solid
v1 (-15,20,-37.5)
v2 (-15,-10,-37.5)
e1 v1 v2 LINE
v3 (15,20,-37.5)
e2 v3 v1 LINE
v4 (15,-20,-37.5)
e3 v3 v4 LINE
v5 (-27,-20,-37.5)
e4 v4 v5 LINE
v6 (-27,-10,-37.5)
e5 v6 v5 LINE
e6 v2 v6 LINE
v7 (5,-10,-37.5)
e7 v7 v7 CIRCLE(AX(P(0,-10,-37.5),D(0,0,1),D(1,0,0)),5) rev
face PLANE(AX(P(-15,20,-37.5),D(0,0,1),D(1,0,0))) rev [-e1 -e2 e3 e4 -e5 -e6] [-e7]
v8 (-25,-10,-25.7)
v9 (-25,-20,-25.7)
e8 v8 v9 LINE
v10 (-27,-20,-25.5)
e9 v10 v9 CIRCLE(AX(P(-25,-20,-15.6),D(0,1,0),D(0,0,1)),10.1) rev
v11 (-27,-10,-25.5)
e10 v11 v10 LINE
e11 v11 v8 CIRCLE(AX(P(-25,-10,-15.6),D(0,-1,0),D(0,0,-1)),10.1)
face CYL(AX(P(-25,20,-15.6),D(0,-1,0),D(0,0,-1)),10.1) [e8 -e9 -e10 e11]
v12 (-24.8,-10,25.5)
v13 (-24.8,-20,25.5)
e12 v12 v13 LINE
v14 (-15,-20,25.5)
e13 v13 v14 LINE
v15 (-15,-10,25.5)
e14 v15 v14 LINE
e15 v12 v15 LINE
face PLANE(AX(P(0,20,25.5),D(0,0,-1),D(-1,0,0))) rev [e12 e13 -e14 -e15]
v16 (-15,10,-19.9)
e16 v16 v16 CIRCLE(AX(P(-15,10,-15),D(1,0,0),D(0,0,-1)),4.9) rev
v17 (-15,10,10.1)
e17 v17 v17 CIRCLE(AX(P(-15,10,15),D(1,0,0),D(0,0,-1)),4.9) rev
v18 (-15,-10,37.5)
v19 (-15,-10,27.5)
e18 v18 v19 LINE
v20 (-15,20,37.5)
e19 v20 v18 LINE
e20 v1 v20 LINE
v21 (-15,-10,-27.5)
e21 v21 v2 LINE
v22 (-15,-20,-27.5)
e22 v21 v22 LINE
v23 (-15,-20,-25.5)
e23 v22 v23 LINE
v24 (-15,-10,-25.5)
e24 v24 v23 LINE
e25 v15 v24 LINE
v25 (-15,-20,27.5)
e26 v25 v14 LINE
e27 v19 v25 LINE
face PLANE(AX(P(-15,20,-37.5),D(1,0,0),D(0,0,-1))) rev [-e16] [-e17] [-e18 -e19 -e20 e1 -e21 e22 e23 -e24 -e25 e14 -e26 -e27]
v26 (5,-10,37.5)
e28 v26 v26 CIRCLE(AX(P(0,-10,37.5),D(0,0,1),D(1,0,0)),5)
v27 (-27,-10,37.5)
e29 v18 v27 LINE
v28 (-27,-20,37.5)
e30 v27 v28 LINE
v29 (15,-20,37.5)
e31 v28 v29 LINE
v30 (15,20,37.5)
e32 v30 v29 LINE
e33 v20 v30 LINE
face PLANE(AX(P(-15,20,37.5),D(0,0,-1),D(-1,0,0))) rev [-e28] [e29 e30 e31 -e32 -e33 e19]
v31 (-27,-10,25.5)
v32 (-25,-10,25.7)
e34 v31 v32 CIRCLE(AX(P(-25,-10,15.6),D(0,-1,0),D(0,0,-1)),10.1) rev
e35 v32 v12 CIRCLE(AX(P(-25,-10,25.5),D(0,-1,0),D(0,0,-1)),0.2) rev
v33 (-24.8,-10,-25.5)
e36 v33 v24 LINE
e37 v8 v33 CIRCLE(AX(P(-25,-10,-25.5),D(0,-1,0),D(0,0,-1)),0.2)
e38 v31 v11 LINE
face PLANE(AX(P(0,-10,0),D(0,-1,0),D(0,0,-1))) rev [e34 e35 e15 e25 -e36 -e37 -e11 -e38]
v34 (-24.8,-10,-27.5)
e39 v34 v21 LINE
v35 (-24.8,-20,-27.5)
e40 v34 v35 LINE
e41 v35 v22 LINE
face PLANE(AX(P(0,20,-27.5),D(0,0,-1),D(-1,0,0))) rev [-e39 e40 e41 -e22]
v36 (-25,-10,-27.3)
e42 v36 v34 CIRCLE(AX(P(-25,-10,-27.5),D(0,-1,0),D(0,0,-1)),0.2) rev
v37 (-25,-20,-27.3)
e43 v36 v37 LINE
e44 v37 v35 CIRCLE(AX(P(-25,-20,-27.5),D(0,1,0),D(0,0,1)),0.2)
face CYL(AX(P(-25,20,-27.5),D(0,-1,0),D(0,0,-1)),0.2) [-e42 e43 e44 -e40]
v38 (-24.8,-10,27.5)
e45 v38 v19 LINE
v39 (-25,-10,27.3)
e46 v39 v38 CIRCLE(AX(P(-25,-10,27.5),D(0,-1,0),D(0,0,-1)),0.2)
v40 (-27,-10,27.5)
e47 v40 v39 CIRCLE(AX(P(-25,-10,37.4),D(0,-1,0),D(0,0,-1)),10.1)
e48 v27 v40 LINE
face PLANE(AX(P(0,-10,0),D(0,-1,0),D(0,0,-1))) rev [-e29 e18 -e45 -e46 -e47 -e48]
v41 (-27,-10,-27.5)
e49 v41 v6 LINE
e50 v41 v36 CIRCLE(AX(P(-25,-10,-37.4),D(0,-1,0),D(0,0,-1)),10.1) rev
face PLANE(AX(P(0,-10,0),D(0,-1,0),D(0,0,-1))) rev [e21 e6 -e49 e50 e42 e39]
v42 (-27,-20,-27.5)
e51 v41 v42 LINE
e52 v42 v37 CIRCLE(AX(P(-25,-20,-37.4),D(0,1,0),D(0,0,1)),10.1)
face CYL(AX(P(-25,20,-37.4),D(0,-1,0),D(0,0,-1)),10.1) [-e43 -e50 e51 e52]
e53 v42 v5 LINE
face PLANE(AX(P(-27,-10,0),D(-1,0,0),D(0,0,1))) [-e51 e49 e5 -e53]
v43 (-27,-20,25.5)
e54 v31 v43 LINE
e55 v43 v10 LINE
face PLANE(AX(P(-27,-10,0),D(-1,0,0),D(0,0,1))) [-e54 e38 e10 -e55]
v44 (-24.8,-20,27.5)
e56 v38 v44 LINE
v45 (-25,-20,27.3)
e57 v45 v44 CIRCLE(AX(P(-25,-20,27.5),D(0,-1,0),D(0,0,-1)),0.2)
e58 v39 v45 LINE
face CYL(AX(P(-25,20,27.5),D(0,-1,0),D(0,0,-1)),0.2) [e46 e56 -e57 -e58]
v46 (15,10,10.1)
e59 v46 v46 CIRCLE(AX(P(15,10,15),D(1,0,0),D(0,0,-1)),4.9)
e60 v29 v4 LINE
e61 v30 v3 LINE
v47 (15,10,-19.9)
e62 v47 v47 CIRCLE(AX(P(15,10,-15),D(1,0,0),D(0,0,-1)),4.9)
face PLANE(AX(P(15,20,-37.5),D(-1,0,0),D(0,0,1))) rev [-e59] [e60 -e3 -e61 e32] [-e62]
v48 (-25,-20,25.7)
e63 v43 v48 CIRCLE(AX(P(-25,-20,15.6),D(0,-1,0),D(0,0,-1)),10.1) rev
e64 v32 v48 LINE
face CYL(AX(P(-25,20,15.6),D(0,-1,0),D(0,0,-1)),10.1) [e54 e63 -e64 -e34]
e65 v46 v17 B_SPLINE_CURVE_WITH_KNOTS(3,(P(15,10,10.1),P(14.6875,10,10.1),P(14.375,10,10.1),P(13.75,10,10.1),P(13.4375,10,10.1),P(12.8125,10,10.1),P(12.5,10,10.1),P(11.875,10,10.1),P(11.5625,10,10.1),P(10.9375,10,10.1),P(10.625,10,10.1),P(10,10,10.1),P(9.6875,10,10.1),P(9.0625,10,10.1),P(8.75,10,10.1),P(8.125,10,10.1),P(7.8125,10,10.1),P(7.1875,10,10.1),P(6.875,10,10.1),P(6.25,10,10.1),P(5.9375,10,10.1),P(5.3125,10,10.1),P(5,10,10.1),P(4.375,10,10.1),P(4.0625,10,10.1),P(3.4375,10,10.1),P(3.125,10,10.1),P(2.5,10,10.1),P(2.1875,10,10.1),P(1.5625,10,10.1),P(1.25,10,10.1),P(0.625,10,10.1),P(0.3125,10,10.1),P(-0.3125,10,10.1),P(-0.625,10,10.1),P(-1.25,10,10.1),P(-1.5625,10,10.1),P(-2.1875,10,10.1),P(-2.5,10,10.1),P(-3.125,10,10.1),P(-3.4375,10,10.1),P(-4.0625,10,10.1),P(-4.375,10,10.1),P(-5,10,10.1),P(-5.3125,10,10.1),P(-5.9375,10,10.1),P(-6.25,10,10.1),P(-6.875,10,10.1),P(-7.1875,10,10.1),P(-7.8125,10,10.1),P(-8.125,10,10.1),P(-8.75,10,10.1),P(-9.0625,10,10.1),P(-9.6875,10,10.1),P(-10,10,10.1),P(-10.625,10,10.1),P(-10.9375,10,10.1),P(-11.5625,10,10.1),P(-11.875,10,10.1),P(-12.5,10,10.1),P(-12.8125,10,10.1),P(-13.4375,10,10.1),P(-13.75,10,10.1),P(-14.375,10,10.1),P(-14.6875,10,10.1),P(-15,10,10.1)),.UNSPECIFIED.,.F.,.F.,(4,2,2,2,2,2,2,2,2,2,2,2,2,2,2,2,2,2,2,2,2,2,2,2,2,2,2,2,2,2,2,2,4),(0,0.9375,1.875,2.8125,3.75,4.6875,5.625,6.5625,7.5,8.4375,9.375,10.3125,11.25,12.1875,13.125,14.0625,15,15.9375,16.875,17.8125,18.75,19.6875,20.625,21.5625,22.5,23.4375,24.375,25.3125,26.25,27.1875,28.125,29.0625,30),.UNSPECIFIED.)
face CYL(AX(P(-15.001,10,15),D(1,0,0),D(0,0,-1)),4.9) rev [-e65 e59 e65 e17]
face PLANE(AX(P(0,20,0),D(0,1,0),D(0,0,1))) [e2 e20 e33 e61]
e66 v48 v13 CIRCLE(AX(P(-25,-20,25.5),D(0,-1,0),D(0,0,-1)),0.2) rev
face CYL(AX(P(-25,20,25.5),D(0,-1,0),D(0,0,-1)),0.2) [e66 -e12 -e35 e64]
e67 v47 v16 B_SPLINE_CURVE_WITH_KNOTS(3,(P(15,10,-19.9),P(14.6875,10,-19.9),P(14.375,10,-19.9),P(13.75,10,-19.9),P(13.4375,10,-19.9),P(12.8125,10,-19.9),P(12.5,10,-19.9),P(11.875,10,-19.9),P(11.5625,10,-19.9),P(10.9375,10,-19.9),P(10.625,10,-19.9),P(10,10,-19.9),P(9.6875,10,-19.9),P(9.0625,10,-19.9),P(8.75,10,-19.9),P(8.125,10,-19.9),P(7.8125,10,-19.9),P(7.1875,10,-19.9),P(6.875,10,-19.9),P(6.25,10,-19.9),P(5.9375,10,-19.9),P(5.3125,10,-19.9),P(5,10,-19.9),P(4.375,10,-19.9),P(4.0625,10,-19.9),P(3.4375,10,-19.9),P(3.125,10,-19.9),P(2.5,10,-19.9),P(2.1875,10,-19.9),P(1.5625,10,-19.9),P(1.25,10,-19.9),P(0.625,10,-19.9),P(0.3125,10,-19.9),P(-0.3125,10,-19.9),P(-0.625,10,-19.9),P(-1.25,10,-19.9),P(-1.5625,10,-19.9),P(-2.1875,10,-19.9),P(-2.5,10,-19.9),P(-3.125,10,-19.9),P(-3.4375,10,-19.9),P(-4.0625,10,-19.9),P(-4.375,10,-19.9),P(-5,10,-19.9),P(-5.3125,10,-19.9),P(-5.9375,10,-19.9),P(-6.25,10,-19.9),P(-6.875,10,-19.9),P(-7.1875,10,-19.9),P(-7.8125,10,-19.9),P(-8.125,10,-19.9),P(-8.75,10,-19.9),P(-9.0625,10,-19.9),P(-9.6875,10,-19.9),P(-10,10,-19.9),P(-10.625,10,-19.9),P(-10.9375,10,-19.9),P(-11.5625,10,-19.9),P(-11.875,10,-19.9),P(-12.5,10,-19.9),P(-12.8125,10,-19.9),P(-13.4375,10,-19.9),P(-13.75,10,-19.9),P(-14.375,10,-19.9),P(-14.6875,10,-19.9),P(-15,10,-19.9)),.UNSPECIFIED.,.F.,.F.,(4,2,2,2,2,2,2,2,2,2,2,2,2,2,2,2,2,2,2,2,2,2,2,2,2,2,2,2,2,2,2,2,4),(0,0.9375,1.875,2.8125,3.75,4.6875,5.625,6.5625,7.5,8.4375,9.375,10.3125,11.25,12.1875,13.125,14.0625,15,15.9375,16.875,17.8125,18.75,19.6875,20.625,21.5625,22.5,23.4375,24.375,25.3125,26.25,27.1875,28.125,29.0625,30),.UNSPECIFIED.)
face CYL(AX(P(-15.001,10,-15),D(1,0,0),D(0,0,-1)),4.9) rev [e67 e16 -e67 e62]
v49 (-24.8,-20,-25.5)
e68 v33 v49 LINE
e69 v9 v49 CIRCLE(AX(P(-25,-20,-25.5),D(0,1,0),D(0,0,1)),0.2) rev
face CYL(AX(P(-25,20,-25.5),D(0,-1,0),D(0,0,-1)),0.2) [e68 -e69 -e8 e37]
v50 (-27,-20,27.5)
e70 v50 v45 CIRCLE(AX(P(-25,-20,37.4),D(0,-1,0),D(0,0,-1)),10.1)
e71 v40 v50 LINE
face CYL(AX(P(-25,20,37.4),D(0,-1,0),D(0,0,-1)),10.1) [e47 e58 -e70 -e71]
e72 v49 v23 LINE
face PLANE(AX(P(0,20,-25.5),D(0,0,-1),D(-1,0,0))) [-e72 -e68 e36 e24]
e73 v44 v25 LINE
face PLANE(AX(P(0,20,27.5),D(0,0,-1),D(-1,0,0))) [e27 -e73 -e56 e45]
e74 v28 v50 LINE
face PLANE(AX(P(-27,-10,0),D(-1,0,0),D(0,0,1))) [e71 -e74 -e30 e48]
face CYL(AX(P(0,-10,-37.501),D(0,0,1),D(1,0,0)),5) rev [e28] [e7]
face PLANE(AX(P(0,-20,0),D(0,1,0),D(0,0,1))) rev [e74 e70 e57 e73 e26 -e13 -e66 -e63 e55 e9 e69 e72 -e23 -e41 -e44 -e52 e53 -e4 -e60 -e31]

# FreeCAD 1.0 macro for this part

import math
import FreeCAD as App
import Part
import Sketcher

V = App.Vector
Q = App.Units.Quantity

doc = App.newDocument("Part")
body = doc.addObject("PartDesign::Body", "Body")

sketch1 = body.newObject("Sketcher::SketchObject", "Sketch")
sketch1.AttachmentSupport = (doc.getObject("XZ_Plane"), [""])
sketch1.MapMode = "FlatFace"
sketch1.addGeometry([
    Part.LineSegment(V(-15, -38, 0), V(-15, 38, 0)),
    Part.LineSegment(V(-15, 38, 0), V(15, 38, 0)),
    Part.LineSegment(V(15, 38, 0), V(15, -38, 0)),
    Part.LineSegment(V(15, -38, 0), V(-15, -38, 0)),
], False)
sketch1.addConstraint([
    Sketcher.Constraint("Coincident", 0, 2, 1, 1),
    Sketcher.Constraint("Coincident", 1, 2, 2, 1),
    Sketcher.Constraint("Coincident", 2, 2, 3, 1),
    Sketcher.Constraint("Coincident", 3, 2, 0, 1),
    Sketcher.Constraint("Vertical", 0),
    Sketcher.Constraint("Horizontal", 1),
    Sketcher.Constraint("Vertical", 2),
    Sketcher.Constraint("Horizontal", 3),
    Sketcher.Constraint("Symmetric", 0, 2, 2, 2, -1, 1),
    Sketcher.Constraint("DistanceX", 1, 1, 1, 2, Q("30 mm")),
    Sketcher.Constraint("DistanceY", 0, 1, 0, 2, Q("75 mm")),
])
pad1 = body.newObject("PartDesign::Pad", "Pad")
pad1.Profile = sketch1
pad1.Length = 40
pad1.Midplane = True

sketch2 = body.newObject("Sketcher::SketchObject", "Sketch001")
sketch2.AttachmentSupport = (doc.getObject("XY_Plane"), [""])
sketch2.MapMode = "FlatFace"
sketch2.AttachmentOffset = App.Placement(V(0, 0, 37.5), App.Rotation())
sketch2.addGeometry(Part.Circle(V(0, -10, 0), V(0, 0, 1), 5), False)
sketch2.addConstraint([
    Sketcher.Constraint("PointOnObject", 0, 3, -2),
    Sketcher.Constraint("Diameter", 0, Q("10 mm")),
    Sketcher.Constraint("DistanceY", 0, 3, -1, 1, Q("10 mm")),
])
pocket1 = body.newObject("PartDesign::Pocket", "Pocket")
pocket1.Profile = sketch2
pocket1.Type = "UpToFirst"

sketch3 = body.newObject("Sketcher::SketchObject", "Sketch002")
sketch3.AttachmentSupport = (doc.getObject("YZ_Plane"), [""])
sketch3.MapMode = "FlatFace"
sketch3.AttachmentOffset = App.Placement(V(0, 0, 15), App.Rotation())
sketch3.addGeometry(Part.Circle(V(10, 15, 0), V(0, 0, 1), 4.9), False)
sketch3.addConstraint([
    Sketcher.Constraint("Diameter", 0, Q("9.8 mm")),
    Sketcher.Constraint("DistanceX", -1, 1, 0, 3, Q("10 mm")),
    Sketcher.Constraint("DistanceY", -1, 1, 0, 3, Q("15 mm")),
])
pocket2 = body.newObject("PartDesign::Pocket", "Pocket001")
pocket2.Profile = sketch3
pocket2.Type = "UpToFirst"

sketch4 = body.newObject("Sketcher::SketchObject", "Sketch003")
sketch4.AttachmentSupport = (doc.getObject("YZ_Plane"), [""])
sketch4.MapMode = "FlatFace"
sketch4.AttachmentOffset = App.Placement(V(0, 0, 15), App.Rotation())
sketch4.addGeometry(Part.Circle(V(10, -15, 0), V(0, 0, 1), 4.9), False)
sketch4.addConstraint([
    Sketcher.Constraint("Diameter", 0, Q("9.8 mm")),
    Sketcher.Constraint("DistanceX", -1, 1, 0, 3, Q("10 mm")),
    Sketcher.Constraint("DistanceY", 0, 3, -1, 1, Q("15 mm")),
])
pocket3 = body.newObject("PartDesign::Pocket", "Pocket002")
pocket3.Profile = sketch4
pocket3.Type = "UpToFirst"

sketch5 = body.newObject("Sketcher::SketchObject", "Sketch004")
sketch5.AttachmentSupport = (doc.getObject("XZ_Plane"), [""])
sketch5.MapMode = "FlatFace"
sketch5.AttachmentOffset = App.Placement(V(0, 0, 20), App.Rotation())
sketch5.addGeometry([
    Part.LineSegment(V(-27, 38, 0), V(-27, -38, 0)),
    Part.LineSegment(V(-27, -38, 0), V(-15, -38, 0)),
    Part.LineSegment(V(-15, -38, 0), V(-15, 38, 0)),
    Part.LineSegment(V(-15, 38, 0), V(-27, 38, 0)),
], False)
sketch5.addConstraint([
    Sketcher.Constraint("Coincident", 0, 2, 1, 1),
    Sketcher.Constraint("Coincident", 1, 2, 2, 1),
    Sketcher.Constraint("Coincident", 2, 2, 3, 1),
    Sketcher.Constraint("Coincident", 3, 2, 0, 1),
    Sketcher.Constraint("Vertical", 0),
    Sketcher.Constraint("Horizontal", 1),
    Sketcher.Constraint("Vertical", 2),
    Sketcher.Constraint("Horizontal", 3),
    Sketcher.Constraint("DistanceX", 1, 1, 1, 2, Q("12 mm")),
    Sketcher.Constraint("DistanceY", 0, 2, 0, 1, Q("75 mm")),
    Sketcher.Constraint("DistanceX", 0, 2, -1, 1, Q("27 mm")),
    Sketcher.Constraint("DistanceY", 0, 2, -1, 1, Q("37.5 mm")),
])
pad2 = body.newObject("PartDesign::Pad", "Pad001")
pad2.Profile = sketch5
pad2.Length = 10
pad2.Reversed = True

sketch6 = body.newObject("Sketcher::SketchObject", "Sketch005")
sketch6.AttachmentSupport = (doc.getObject("XZ_Plane"), [""])
sketch6.MapMode = "FlatFace"
sketch6.AttachmentOffset = App.Placement(V(0, 0, 20), App.Rotation())
sketch6.addGeometry([
    Part.ArcOfCircle(Part.Circle(V(-25, 37.4, 0), V(0, 0, 1), 10.1), math.radians(-101.42), math.radians(-90)),
    Part.LineSegment(V(-27, 27.5, 0), V(-27, 25.5, 0)),
    Part.ArcOfCircle(Part.Circle(V(-25, 15.6, 0), V(0, 0, 1), 10.1), math.radians(90), math.radians(101.42)),
    Part.ArcOfCircle(Part.Circle(V(-25, 25.5, 0), V(0, 0, 1), 0.2), math.radians(0), math.radians(90)),
    Part.LineSegment(V(-24.8, 25.5, 0), V(-15, 25.5, 0)),
    Part.LineSegment(V(-15, 25.5, 0), V(-15, 27.5, 0)),
    Part.LineSegment(V(-15, 27.5, 0), V(-24.8, 27.5, 0)),
    Part.ArcOfCircle(Part.Circle(V(-25, 27.5, 0), V(0, 0, 1), 0.2), math.radians(-90), math.radians(0)),
], False)
sketch6.addConstraint([
    Sketcher.Constraint("Coincident", 0, 1, 1, 1),
    Sketcher.Constraint("Coincident", 1, 2, 2, 2),
    Sketcher.Constraint("Tangent", 2, 1, 3, 2),
    Sketcher.Constraint("Coincident", 3, 1, 4, 1),
    Sketcher.Constraint("Coincident", 4, 2, 5, 1),
    Sketcher.Constraint("Coincident", 5, 2, 6, 1),
    Sketcher.Constraint("Coincident", 6, 2, 7, 2),
    Sketcher.Constraint("Tangent", 7, 1, 0, 2),
    Sketcher.Constraint("Vertical", 1),
    Sketcher.Constraint("Horizontal", 4),
    Sketcher.Constraint("Vertical", 5),
    Sketcher.Constraint("Horizontal", 6),
    Sketcher.Constraint("Equal", 0, 2),
    Sketcher.Constraint("Equal", 3, 7),
    Sketcher.Constraint("Horizontal", 7, 3, 0, 1),
    Sketcher.Constraint("Horizontal", 3, 3, 1, 2),
    Sketcher.Constraint("Horizontal", 1, 2, 3, 1),
    Sketcher.Constraint("Horizontal", 0, 1, 5, 2),
    Sketcher.Constraint("Vertical", 2, 3, 3, 3),
    Sketcher.Constraint("Vertical", 3, 3, 7, 3),
    Sketcher.Constraint("Radius", 0, Q("10.1 mm")),
    Sketcher.Constraint("Radius", 3, Q("0.2 mm")),
    Sketcher.Constraint("DistanceY", 1, 2, 1, 1, Q("2 mm")),
    Sketcher.Constraint("DistanceX", 4, 1, 4, 2, Q("9.8 mm")),
    Sketcher.Constraint("DistanceX", 0, 3, -1, 1, Q("25 mm")),
    Sketcher.Constraint("DistanceY", -1, 1, 0, 3, Q("37.4 mm")),
])
pocket4 = body.newObject("PartDesign::Pocket", "Pocket003")
pocket4.Profile = sketch6
pocket4.Length = 124.233383
pocket4.Midplane = True
doc.recompute()

mirrored = body.newObject("PartDesign::Mirrored", "Mirrored")
mirrored.Originals = [pocket4]
mirrored.MirrorPlane = (doc.getObject("XY_Plane"), [""])
body.Tip = mirrored

doc.recompute()
